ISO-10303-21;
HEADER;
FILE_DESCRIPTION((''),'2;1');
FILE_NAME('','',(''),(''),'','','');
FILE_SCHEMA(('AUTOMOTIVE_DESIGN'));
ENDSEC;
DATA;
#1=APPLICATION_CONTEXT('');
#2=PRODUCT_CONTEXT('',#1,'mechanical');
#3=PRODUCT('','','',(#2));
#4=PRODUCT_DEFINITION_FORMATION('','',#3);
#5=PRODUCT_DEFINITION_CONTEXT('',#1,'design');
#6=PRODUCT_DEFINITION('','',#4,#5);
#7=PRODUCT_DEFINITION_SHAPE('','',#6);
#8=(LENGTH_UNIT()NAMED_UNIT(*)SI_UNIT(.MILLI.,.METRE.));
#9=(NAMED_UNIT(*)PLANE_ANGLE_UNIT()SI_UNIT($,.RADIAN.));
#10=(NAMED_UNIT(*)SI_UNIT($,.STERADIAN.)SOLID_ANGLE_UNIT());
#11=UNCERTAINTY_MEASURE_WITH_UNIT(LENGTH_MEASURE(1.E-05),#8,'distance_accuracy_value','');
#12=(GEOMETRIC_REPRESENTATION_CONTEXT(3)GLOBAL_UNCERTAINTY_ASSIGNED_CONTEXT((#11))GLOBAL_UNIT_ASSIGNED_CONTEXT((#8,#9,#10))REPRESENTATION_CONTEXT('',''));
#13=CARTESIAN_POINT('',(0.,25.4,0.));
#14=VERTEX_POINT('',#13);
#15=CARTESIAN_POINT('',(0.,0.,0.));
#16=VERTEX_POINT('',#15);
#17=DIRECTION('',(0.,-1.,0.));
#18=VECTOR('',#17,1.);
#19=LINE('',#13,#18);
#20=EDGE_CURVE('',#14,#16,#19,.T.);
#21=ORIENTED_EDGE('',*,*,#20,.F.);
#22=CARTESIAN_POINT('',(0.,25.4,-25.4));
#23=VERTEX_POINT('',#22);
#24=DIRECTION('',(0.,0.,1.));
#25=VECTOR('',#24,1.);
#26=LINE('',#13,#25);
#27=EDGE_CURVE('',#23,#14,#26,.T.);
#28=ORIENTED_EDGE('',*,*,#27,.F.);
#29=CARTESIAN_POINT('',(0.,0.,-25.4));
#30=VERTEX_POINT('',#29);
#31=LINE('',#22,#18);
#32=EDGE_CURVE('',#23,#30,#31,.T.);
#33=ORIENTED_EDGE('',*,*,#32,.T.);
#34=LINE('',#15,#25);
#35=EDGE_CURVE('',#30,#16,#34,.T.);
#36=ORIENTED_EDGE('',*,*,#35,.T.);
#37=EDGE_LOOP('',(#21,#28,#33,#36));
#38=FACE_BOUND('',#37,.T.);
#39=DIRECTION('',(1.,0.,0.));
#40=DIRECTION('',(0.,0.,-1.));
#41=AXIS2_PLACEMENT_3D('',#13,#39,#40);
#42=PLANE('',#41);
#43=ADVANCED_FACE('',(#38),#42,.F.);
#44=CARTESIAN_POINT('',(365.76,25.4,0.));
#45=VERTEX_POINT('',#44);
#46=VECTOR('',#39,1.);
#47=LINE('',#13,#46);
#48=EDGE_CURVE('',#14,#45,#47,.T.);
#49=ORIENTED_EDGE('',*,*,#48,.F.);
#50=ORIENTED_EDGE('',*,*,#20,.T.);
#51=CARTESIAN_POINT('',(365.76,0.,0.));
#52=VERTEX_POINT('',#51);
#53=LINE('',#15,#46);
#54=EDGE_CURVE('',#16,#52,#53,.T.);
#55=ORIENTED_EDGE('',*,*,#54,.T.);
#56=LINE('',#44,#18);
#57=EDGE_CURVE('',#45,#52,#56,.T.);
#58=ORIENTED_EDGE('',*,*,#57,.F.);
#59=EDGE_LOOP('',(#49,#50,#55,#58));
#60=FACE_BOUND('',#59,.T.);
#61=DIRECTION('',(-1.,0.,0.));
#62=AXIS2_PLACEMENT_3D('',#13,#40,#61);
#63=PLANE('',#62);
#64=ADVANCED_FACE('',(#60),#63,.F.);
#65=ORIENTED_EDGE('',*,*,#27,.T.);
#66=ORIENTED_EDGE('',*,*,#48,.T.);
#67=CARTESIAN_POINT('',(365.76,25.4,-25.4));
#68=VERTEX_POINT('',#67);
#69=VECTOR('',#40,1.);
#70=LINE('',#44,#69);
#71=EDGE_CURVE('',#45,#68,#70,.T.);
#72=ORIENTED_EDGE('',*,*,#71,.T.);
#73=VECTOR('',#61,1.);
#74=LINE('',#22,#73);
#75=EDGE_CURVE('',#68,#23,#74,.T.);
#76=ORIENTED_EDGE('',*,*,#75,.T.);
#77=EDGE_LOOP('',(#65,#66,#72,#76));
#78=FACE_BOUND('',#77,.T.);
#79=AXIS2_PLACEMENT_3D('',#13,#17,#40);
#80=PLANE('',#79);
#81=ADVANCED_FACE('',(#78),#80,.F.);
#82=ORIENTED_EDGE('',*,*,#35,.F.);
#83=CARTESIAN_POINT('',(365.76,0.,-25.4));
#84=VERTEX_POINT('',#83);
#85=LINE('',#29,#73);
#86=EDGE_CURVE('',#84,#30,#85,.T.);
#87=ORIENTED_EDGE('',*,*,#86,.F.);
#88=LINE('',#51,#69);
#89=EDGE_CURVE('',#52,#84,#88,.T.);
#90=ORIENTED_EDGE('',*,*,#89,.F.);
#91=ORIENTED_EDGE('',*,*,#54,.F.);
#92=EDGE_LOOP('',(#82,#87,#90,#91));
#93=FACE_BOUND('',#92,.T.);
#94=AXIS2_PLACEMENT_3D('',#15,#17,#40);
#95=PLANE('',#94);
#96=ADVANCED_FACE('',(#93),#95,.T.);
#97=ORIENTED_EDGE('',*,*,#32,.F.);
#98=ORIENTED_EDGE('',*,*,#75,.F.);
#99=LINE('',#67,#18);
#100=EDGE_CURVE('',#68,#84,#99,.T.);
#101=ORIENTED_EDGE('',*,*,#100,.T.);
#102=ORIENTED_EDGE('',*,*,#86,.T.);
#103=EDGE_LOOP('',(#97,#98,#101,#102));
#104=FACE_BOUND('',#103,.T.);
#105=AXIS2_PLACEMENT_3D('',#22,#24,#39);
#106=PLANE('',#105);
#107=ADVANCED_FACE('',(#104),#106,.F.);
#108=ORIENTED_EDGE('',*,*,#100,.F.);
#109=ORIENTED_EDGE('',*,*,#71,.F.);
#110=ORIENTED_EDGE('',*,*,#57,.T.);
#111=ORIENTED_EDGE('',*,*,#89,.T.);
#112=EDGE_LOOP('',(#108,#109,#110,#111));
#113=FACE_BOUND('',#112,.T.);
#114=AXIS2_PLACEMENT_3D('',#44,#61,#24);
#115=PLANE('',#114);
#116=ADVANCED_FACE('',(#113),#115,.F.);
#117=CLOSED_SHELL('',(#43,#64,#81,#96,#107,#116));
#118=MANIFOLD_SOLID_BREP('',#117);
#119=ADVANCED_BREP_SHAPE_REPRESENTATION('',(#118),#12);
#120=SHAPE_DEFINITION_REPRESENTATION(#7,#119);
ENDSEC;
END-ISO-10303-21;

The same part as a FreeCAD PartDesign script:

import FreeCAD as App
import Part
import Sketcher
Q = App.Units.Quantity


def add_polygon(sketch, points):
    """Adds a closed chain of lines whose ends are joined by coincident constraints."""
    first, n = sketch.GeometryCount, len(points)
    for a, b in zip(points, points[1:] + points[:1]):
        sketch.addGeometry(Part.LineSegment(App.Vector(*a, 0), App.Vector(*b, 0)), False)
    for i in range(n):
        sketch.addConstraint(Sketcher.Constraint("Coincident", first + i, 2, first + (i + 1) % n, 1))

doc = App.newDocument("Part")
body = doc.addObject("PartDesign::Body", "Body")

# Sketch on XZ plane
sketch1 = body.newObject("Sketcher::SketchObject", "Sketch")
sketch1.AttachmentSupport = (doc.getObject("XZ_Plane"), [""])
sketch1.MapMode = "FlatFace"
add_polygon(sketch1, [(0, -25.4), (0, 0), (365.76, 0), (365.76, -25.4)])  # lines 0-3
sketch1.addConstraint([
    Sketcher.Constraint("Vertical", 0),
    Sketcher.Constraint("Horizontal", 1),
    Sketcher.Constraint("Vertical", 2),
    Sketcher.Constraint("Horizontal", 3),
    Sketcher.Constraint("Coincident", 0, 2, -1, 1),
    Sketcher.Constraint("DistanceY", 0, 1, 0, 2, Q("1 in")),
    Sketcher.Constraint("DistanceX", 1, 1, 1, 2, Q("14.4 in")),
])
pad1 = body.newObject("PartDesign::Pad", "Pad")
pad1.Profile = sketch1
pad1.Length = Q("1 in")
pad1.Reversed = True

doc.recompute()
